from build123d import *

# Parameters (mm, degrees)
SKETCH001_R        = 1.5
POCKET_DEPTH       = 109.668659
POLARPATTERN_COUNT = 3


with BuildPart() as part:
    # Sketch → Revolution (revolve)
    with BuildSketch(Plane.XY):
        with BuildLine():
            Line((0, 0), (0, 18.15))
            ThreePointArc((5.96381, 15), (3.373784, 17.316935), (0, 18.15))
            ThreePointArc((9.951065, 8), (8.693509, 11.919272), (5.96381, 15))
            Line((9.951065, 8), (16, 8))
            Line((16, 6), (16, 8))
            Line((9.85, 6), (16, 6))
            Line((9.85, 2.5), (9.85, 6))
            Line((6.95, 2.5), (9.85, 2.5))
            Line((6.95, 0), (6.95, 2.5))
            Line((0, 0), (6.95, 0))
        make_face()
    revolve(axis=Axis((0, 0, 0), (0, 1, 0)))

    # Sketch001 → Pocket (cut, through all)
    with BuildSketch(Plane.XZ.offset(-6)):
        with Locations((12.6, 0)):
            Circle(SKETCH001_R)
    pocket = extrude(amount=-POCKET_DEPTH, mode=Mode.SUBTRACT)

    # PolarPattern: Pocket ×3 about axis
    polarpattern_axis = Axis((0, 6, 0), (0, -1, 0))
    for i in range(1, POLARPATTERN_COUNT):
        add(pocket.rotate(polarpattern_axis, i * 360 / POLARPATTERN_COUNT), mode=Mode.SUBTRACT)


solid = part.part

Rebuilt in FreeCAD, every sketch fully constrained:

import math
import FreeCAD as App
import Part
import Sketcher
from FreeCAD import Vector

doc = App.newDocument("Part")
body = doc.addObject("PartDesign::Body", "Body")

# Sketch on XY plane
sketch1 = doc.addObject("Sketcher::SketchObject", "Sketch")
body.addObject(sketch1)
sketch1.AttachmentSupport = (doc.XY_Plane, [""])
sketch1.MapMode = "FlatFace"
sketch1.addGeometry([
    Part.LineSegment(Vector(0, 18.1, 0), Vector(0, 0, 0)),  # 0
    Part.LineSegment(Vector(0, 0, 0), Vector(7, 0, 0)),  # 1
    Part.LineSegment(Vector(7, 0, 0), Vector(7, 2.5, 0)),  # 2
    Part.LineSegment(Vector(7, 2.5, 0), Vector(9.8, 2.5, 0)),  # 3
    Part.LineSegment(Vector(9.8, 2.5, 0), Vector(9.8, 6, 0)),  # 4
    Part.LineSegment(Vector(9.8, 6, 0), Vector(16, 6, 0)),  # 5
    Part.LineSegment(Vector(16, 6, 0), Vector(16, 8, 0)),  # 6
    Part.LineSegment(Vector(16, 8, 0), Vector(10, 8, 0)),  # 7
    Part.ArcOfCircle(Part.Circle(Vector(0, 7, 0), Vector(0, 0, 1), 10), math.radians(6), math.radians(53)),  # 8
    Part.ArcOfCircle(Part.Circle(Vector(0, 11, 0), Vector(0, 0, 1), 7.2), math.radians(34), math.radians(90)),  # 9
], False)
sketch1.addConstraint([
    Sketcher.Constraint("Coincident", 0, 2, 1, 1),
    Sketcher.Constraint("Coincident", 1, 2, 2, 1),
    Sketcher.Constraint("Coincident", 2, 2, 3, 1),
    Sketcher.Constraint("Coincident", 3, 2, 4, 1),
    Sketcher.Constraint("Coincident", 4, 2, 5, 1),
    Sketcher.Constraint("Coincident", 5, 2, 6, 1),
    Sketcher.Constraint("Coincident", 6, 2, 7, 1),
    Sketcher.Constraint("Coincident", 7, 2, 8, 1),
    Sketcher.Constraint("Coincident", 8, 2, 9, 1),
    Sketcher.Constraint("Coincident", 9, 2, 0, 1),
    Sketcher.Constraint("Vertical", 0),
    Sketcher.Constraint("Horizontal", 1),
    Sketcher.Constraint("Vertical", 2),
    Sketcher.Constraint("Horizontal", 3),
    Sketcher.Constraint("Vertical", 4),
    Sketcher.Constraint("Horizontal", 5),
    Sketcher.Constraint("Vertical", 6),
    Sketcher.Constraint("Horizontal", 7),
    Sketcher.Constraint("Coincident", 0, 2, -1, 1),
    Sketcher.Constraint("Radius", 8, 10.000001),
    Sketcher.Constraint("DistanceY", 6, 1, 6, 2, 2.0),
    Sketcher.Constraint("DistanceX", 3, 1, 3, 2, 2.9),
    Sketcher.Constraint("DistanceY", 2, 1, 2, 2, 2.5),
    Sketcher.Constraint("DistanceY", 4, 1, 4, 2, 3.5),
    Sketcher.Constraint("DistanceX", -1, 1, 5, 2, 16.0),
    Sketcher.Constraint("DistanceY", -1, 1, 8, 2, 15.0),
    Sketcher.Constraint("DistanceX", 1, 1, 1, 2, 6.95),
    Sketcher.Constraint("DistanceY", 0, 2, 0, 1, 18.15),
    Sketcher.Constraint("Radius", 9, 7.196321),
    Sketcher.Constraint("DistanceX", 7, 2, 7, 1, 6.048935),
    Sketcher.Constraint("DistanceX", -1, 1, 8, 3, 0.00427),
])
revolution = doc.addObject("PartDesign::Revolution", "Revolution")
body.addObject(revolution)
revolution.Profile = sketch1
revolution.ReferenceAxis = (sketch1, ["V_Axis"])
revolution.Angle = 360

# Sketch on XZ plane
sketch2 = doc.addObject("Sketcher::SketchObject", "Sketch001")
body.addObject(sketch2)
sketch2.AttachmentSupport = (doc.XZ_Plane, [""])
sketch2.MapMode = "FlatFace"
sketch2.AttachmentOffset = App.Placement(Vector(0, 0, -6), App.Rotation())
sketch2.addGeometry(Part.Circle(Vector(12.6, 0, 0), Vector(0, 0, 1), 1.5), False)
sketch2.addConstraint([
    Sketcher.Constraint("PointOnObject", 0, 3, -1),
    Sketcher.Constraint("Diameter", 0, 3.0),
    Sketcher.Constraint("DistanceX", -1, 1, 0, 3, 12.6),
])
pocket1 = doc.addObject("PartDesign::Pocket", "Pocket")
body.addObject(pocket1)
pocket1.Profile = sketch2
pocket1.Type = "ThroughAll"
doc.recompute()

polarpattern = doc.addObject("PartDesign::PolarPattern", "PolarPattern")
body.addObject(polarpattern)
polarpattern.Originals = [pocket1]
polarpattern.Axis = (doc.Y_Axis, [""])
polarpattern.Angle = 360
polarpattern.Occurrences = 3
body.Tip = polarpattern

doc.recompute()
